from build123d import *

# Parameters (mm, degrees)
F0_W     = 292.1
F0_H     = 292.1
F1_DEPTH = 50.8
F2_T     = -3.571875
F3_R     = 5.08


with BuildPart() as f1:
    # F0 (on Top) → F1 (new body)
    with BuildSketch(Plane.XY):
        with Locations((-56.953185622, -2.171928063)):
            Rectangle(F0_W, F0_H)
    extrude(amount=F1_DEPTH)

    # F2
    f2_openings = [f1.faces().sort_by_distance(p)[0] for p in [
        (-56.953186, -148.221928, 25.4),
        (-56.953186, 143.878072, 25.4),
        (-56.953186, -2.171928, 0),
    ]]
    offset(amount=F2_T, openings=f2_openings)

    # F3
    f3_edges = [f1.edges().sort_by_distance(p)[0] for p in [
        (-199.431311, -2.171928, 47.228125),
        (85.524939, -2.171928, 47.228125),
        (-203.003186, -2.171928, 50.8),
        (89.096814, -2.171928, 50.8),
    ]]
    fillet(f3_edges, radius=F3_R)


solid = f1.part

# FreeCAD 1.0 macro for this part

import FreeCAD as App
import Part
import Sketcher

V = App.Vector
Q = App.Units.Quantity


def edges_at(feature, points):
    """Names of the edges that pass closest to the given points."""
    edges = feature.Shape.Edges
    near = lambda p: min(range(len(edges)), key=lambda i: edges[i].distToShape(Part.Vertex(*p))[0])
    return sorted({f"Edge{near(p) + 1}" for p in points})


def faces_at(feature, points):
    """Names of the faces that lie closest to the given points."""
    faces = feature.Shape.Faces
    near = lambda p: min(range(len(faces)), key=lambda i: faces[i].distToShape(Part.Vertex(*p))[0])
    return sorted({f"Face{near(p) + 1}" for p in points})


def add_polygon(sketch, points):
    """Adds a closed chain of lines whose ends are joined by coincident constraints."""
    first, n = sketch.GeometryCount, len(points)
    for a, b in zip(points, points[1:] + points[:1]):
        sketch.addGeometry(Part.LineSegment(App.Vector(*a, 0), App.Vector(*b, 0)), False)
    for i in range(n):
        sketch.addConstraint(Sketcher.Constraint("Coincident", first + i, 2, first + (i + 1) % n, 1))

doc = App.newDocument("Part")
body = doc.addObject("PartDesign::Body", "Body")

sketch1 = doc.addObject("Sketcher::SketchObject", "Sketch")
body.addObject(sketch1)
sketch1.AttachmentSupport = (doc.XY_Plane, [""])
sketch1.MapMode = "FlatFace"
add_polygon(sketch1, [(-203.003186, 143.878072), (-203.003186, -148.221928), (89.096814, -148.221928), (89.096814, 143.878072)])
sketch1.addConstraint([
    Sketcher.Constraint("Vertical", 0),
    Sketcher.Constraint("Horizontal", 1),
    Sketcher.Constraint("Vertical", 2),
    Sketcher.Constraint("Horizontal", 3),
    Sketcher.Constraint("Equal", 3, 0),
    Sketcher.Constraint("DistanceX", 1, 1, 1, 2, Q("11.5 in")),
    Sketcher.Constraint("DistanceY", 0, 2, -1, 1, 148.221928),
    Sketcher.Constraint("DistanceX", 0, 2, -1, 1, 203.003186),
])
pad1 = doc.addObject("PartDesign::Pad", "Pad")
body.addObject(pad1)
pad1.Profile = sketch1
pad1.Length = Q("2 in")
doc.recompute()

thickness = doc.addObject("PartDesign::Thickness", "Thickness")
body.addObject(thickness)
thickness.Base = (pad1, faces_at(pad1, [(-56.953, -148.222, 25.4), (-56.953, 143.878, 25.4), (-56.953, -2.172, 0)]))
thickness.Value = Q("0.140625 in")
thickness.Reversed = True
thickness.Join = "Arc"
doc.recompute()

fillet = doc.addObject("PartDesign::Fillet", "Fillet")
body.addObject(fillet)
fillet.Base = (thickness, edges_at(thickness, [
    (-199.431, -2.172, 47.228),
    (85.525, -2.172, 47.228),
    (-203.003, -2.172, 50.8),
    (89.097, -2.172, 50.8),
]))
fillet.Radius = Q("0.2 in")

doc.recompute()
